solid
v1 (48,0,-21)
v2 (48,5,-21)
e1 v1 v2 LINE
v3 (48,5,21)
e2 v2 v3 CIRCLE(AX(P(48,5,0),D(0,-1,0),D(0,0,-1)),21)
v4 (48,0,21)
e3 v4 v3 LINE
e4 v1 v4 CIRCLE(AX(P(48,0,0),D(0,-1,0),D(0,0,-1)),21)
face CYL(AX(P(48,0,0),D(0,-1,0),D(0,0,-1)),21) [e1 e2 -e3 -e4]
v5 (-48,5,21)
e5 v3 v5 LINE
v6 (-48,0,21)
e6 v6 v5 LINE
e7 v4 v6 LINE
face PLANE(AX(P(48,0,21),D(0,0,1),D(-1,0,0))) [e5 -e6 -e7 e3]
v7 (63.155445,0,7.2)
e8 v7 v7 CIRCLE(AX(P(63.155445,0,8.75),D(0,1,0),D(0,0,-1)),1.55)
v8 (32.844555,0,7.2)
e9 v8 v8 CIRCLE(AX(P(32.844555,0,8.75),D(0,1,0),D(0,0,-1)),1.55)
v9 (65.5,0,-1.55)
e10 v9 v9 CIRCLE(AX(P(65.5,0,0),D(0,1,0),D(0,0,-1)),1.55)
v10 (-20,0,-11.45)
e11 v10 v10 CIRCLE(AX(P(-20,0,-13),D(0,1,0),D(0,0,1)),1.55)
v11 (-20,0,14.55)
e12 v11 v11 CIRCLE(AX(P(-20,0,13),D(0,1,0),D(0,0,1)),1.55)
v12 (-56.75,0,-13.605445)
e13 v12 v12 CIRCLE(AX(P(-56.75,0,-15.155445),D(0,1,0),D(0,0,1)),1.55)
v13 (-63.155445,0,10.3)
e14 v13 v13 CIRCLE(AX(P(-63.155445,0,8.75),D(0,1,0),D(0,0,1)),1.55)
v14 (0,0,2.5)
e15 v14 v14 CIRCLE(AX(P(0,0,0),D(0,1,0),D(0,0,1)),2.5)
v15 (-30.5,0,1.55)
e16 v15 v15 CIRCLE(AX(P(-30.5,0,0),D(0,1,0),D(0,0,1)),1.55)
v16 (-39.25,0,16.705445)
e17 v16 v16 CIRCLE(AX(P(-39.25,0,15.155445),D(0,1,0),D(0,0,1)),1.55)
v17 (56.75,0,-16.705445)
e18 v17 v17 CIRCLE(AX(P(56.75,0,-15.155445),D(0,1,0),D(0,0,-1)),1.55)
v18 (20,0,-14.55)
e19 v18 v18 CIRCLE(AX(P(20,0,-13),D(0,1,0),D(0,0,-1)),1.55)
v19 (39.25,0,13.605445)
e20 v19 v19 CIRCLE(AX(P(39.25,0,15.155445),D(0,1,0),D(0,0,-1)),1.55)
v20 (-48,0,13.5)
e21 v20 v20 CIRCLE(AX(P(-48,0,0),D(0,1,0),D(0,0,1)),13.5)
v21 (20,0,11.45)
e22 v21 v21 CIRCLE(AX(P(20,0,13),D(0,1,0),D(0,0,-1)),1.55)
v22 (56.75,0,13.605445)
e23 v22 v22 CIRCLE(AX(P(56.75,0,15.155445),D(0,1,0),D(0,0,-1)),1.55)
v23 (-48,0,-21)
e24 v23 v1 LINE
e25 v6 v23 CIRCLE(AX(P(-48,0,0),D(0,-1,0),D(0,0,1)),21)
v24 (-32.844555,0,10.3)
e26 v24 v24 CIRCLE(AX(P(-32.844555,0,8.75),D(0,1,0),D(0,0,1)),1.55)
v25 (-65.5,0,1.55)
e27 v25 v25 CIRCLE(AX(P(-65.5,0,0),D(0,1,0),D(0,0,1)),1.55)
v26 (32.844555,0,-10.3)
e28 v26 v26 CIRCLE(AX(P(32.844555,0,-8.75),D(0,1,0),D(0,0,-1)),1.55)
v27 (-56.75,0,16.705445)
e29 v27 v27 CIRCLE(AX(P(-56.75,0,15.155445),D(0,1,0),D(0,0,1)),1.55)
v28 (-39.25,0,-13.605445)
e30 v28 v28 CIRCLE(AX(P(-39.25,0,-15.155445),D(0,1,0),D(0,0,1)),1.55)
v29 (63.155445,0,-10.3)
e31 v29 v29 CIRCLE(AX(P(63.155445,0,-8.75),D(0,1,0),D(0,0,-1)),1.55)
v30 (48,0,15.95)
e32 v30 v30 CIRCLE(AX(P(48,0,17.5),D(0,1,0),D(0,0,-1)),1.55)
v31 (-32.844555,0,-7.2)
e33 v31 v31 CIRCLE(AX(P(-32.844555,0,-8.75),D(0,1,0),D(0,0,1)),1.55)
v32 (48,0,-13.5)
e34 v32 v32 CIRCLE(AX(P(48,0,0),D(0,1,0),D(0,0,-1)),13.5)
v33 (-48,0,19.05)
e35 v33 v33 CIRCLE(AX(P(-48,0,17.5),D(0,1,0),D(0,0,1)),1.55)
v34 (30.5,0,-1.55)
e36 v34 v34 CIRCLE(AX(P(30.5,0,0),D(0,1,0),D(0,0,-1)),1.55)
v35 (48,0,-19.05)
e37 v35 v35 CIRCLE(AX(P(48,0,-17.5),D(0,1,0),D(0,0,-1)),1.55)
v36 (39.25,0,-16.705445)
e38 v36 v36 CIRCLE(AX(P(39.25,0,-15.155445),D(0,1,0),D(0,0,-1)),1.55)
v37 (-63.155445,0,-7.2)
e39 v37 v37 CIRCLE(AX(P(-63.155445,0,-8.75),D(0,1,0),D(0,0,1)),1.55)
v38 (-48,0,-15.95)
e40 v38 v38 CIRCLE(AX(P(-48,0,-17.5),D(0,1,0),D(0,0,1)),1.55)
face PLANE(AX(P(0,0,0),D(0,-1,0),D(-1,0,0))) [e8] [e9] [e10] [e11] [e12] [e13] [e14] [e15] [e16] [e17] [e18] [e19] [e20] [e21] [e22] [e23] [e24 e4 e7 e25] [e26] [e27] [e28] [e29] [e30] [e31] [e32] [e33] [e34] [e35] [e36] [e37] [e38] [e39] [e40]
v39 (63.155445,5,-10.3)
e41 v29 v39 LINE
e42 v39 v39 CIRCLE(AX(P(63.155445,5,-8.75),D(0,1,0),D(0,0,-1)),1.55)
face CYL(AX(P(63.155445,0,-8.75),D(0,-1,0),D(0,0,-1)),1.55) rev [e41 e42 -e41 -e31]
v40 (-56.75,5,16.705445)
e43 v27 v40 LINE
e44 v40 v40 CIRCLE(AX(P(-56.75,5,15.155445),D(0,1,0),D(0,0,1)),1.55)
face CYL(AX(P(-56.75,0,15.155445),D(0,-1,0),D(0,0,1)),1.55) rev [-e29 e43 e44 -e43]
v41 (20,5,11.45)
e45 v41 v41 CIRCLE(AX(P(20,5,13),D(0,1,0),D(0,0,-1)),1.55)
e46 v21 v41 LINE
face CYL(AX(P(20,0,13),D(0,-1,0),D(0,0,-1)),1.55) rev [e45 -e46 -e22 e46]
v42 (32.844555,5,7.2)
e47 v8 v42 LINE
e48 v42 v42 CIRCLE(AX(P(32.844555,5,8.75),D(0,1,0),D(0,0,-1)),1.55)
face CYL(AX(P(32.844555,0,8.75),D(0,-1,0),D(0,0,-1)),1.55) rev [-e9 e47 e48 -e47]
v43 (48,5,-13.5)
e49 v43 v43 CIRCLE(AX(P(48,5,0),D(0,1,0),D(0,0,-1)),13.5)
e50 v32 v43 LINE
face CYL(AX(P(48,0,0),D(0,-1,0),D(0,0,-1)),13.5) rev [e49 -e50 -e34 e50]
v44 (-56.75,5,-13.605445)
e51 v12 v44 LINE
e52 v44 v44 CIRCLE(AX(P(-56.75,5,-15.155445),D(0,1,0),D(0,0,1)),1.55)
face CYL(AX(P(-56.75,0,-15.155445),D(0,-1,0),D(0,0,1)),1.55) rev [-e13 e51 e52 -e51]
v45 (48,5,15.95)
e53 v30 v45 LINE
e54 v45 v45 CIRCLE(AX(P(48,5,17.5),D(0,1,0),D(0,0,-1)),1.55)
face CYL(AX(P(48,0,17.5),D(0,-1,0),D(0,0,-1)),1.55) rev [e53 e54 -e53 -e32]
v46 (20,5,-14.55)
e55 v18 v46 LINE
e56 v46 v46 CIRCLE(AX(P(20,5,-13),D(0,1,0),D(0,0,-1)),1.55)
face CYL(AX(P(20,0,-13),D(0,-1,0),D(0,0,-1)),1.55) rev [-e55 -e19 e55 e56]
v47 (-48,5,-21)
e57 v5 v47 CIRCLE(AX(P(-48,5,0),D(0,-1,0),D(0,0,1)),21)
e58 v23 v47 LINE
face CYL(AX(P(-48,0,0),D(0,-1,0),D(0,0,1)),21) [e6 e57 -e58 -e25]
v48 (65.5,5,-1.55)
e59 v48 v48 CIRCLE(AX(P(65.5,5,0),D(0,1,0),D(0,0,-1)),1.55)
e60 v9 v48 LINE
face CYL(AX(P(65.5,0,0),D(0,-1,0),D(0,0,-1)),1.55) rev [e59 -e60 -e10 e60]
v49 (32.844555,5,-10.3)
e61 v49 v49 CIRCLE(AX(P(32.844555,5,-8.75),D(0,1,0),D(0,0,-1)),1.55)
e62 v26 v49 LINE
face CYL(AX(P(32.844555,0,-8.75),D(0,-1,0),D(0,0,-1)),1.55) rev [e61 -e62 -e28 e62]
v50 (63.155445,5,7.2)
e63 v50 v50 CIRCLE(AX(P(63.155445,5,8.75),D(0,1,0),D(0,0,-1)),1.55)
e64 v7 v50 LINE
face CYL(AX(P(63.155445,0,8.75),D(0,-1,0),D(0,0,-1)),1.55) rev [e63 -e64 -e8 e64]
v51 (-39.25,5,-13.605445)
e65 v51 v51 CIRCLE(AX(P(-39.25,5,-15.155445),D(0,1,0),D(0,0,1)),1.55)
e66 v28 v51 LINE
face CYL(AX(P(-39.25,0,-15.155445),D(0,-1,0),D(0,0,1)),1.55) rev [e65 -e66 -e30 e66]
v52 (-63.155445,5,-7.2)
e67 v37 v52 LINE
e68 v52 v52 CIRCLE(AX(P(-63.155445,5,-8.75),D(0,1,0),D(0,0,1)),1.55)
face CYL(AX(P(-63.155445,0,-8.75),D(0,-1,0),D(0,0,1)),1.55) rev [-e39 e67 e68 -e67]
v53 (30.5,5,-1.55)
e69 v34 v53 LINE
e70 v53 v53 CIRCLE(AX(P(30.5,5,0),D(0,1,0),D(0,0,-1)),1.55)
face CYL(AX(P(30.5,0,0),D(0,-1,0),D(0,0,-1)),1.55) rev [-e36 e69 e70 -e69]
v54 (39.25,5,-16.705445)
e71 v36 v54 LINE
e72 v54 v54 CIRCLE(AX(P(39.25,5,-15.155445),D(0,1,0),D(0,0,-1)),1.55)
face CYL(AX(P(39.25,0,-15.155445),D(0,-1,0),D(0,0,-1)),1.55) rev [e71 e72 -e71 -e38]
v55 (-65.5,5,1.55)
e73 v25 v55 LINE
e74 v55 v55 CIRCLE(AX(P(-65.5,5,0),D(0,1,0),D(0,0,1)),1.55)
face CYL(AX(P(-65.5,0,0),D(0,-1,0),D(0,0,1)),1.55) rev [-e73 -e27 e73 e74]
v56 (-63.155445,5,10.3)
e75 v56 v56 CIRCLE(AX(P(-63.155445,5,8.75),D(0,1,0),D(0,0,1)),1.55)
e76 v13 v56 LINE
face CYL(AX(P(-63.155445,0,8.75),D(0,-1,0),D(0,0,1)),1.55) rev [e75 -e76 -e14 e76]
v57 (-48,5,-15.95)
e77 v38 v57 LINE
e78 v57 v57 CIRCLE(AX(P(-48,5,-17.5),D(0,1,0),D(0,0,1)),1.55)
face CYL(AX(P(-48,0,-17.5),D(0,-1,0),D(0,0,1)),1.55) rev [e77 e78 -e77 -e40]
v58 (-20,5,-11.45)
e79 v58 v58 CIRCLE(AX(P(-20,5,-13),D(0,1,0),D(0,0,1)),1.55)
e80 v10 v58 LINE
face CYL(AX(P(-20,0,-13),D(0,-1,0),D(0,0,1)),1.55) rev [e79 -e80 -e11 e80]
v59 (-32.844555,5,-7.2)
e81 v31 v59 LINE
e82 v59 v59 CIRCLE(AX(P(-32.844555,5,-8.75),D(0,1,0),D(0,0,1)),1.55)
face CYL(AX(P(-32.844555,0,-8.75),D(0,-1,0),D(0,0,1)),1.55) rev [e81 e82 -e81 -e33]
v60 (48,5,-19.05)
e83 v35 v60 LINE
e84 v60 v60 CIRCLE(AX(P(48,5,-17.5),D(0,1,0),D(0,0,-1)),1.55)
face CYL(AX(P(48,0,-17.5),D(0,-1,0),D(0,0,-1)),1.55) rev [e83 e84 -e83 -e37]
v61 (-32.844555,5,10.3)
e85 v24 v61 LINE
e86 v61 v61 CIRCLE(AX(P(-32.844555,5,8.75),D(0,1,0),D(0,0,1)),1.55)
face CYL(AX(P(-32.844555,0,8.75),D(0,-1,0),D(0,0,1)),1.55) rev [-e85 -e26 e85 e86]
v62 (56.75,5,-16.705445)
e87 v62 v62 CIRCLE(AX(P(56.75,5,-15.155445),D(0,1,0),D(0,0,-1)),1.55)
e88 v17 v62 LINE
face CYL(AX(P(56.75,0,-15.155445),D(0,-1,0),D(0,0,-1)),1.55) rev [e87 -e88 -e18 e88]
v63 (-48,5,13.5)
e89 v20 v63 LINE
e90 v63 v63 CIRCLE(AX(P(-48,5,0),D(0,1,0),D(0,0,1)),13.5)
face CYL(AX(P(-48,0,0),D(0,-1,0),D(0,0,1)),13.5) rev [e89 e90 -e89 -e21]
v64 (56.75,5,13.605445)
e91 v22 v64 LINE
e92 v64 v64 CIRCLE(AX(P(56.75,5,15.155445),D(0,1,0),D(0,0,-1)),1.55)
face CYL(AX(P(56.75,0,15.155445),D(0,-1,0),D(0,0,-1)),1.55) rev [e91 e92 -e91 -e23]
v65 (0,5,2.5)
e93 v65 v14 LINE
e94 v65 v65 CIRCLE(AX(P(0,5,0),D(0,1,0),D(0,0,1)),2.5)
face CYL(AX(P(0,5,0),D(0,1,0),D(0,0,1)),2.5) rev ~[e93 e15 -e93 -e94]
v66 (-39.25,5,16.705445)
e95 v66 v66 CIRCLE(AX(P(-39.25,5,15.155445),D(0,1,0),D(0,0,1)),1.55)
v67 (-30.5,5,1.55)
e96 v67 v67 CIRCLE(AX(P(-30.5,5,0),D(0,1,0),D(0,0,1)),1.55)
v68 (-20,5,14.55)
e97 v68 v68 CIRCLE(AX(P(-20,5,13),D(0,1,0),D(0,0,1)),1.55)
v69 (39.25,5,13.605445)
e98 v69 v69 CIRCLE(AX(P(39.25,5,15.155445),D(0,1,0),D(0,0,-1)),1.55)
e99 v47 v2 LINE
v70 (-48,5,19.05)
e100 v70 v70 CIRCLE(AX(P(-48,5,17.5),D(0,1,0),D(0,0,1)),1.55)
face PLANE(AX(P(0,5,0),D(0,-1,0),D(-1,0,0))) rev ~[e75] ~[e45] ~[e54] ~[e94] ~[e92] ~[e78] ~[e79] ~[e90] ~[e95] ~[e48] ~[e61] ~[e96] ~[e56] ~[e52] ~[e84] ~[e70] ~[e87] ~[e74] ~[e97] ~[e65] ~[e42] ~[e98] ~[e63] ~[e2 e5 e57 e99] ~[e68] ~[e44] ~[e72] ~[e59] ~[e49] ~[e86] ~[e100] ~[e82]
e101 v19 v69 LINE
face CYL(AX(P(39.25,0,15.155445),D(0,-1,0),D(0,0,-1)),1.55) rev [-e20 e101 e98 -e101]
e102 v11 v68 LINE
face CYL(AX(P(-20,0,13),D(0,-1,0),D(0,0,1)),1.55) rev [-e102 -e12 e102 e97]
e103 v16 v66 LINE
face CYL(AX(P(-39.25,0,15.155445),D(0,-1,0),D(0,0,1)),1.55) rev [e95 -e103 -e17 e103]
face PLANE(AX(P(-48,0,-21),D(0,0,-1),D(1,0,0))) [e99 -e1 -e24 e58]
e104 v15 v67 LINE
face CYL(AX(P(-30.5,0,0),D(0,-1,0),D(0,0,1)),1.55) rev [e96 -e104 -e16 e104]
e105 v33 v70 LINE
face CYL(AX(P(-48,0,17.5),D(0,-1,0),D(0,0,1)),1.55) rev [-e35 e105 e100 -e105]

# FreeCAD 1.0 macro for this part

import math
import FreeCAD as App
import Part
import Sketcher
from FreeCAD import Vector

doc = App.newDocument("Part")
body = doc.addObject("PartDesign::Body", "Body")

sketch1 = doc.addObject("Sketcher::SketchObject", "Sketch")
body.addObject(sketch1)
sketch1.AttachmentSupport = (doc.XZ_Plane, [""])
sketch1.MapMode = "FlatFace"
sketch1.addGeometry([
    Part.LineSegment(Vector(48, -21, 0), Vector(-48, -21, 0)),
    Part.ArcOfCircle(Part.Circle(Vector(-48, 0, 0), Vector(0, 0, 1), 21), math.radians(90), math.radians(270)),
    Part.LineSegment(Vector(-48, 21, 0), Vector(48, 21, 0)),
    Part.ArcOfCircle(Part.Circle(Vector(48, 0, 0), Vector(0, 0, 1), 21), math.radians(-90), math.radians(90)),
    Part.Circle(Vector(56.8, 15.2, 0), Vector(0, 0, 1), 1.6),
    Part.Circle(Vector(48, 17.5, 0), Vector(0, 0, 1), 1.6),
    Part.Circle(Vector(39.2, 15.2, 0), Vector(0, 0, 1), 1.6),
    Part.Circle(Vector(20, 13, 0), Vector(0, 0, 1), 1.6),
    Part.Circle(Vector(63.2, 8.8, 0), Vector(0, 0, 1), 1.6),
    Part.Circle(Vector(32.8, 8.8, 0), Vector(0, 0, 1), 1.6),
    Part.Circle(Vector(-20, 13, 0), Vector(0, 0, 1), 1.6),
    Part.Circle(Vector(-48, 17.5, 0), Vector(0, 0, 1), 1.6),
    Part.Circle(Vector(-39.2, 15.2, 0), Vector(0, 0, 1), 1.6),
    Part.Circle(Vector(-56.8, 15.2, 0), Vector(0, 0, 1), 1.6),
    Part.Circle(Vector(-32.8, 8.8, 0), Vector(0, 0, 1), 1.6),
    Part.Circle(Vector(-63.2, 8.8, 0), Vector(0, 0, 1), 1.6),
    Part.Circle(Vector(65.5, 0, 0), Vector(0, 0, 1), 1.6),
    Part.Circle(Vector(48, 0, 0), Vector(0, 0, 1), 13.5),
    Part.Circle(Vector(63.2, -8.8, 0), Vector(0, 0, 1), 1.6),
    Part.Circle(Vector(30.5, 0, 0), Vector(0, 0, 1), 1.6),
    Part.Circle(Vector(32.8, -8.8, 0), Vector(0, 0, 1), 1.6),
    Part.Circle(Vector(56.8, -15.2, 0), Vector(0, 0, 1), 1.6),
    Part.Circle(Vector(39.2, -15.2, 0), Vector(0, 0, 1), 1.6),
    Part.Circle(Vector(48, -17.5, 0), Vector(0, 0, 1), 1.6),
    Part.Circle(Vector(20, -13, 0), Vector(0, 0, 1), 1.6),
    Part.Circle(Vector(-30.5, 0, 0), Vector(0, 0, 1), 1.6),
    Part.Circle(Vector(-32.8, -8.8, 0), Vector(0, 0, 1), 1.6),
    Part.Circle(Vector(-48, 0, 0), Vector(0, 0, 1), 13.5),
    Part.Circle(Vector(-65.5, 0, 0), Vector(0, 0, 1), 1.6),
    Part.Circle(Vector(-63.2, -8.8, 0), Vector(0, 0, 1), 1.6),
    Part.Circle(Vector(-20, -13, 0), Vector(0, 0, 1), 1.6),
    Part.Circle(Vector(-39.2, -15.2, 0), Vector(0, 0, 1), 1.6),
    Part.Circle(Vector(-48, -17.5, 0), Vector(0, 0, 1), 1.6),
    Part.Circle(Vector(-56.8, -15.2, 0), Vector(0, 0, 1), 1.6),
], False)
sketch1.addConstraint([
    Sketcher.Constraint("Tangent", 0, 2, 1, 2),
    Sketcher.Constraint("Tangent", 1, 1, 2, 1),
    Sketcher.Constraint("Tangent", 2, 2, 3, 2),
    Sketcher.Constraint("Tangent", 3, 1, 0, 1),
    Sketcher.Constraint("Horizontal", 0),
    Sketcher.Constraint("Horizontal", 2),
    Sketcher.Constraint("Coincident", 17, 3, 3, 3),
    Sketcher.Constraint("Coincident", 27, 3, 1, 3),
    Sketcher.Constraint("Equal", 4, 5),
    Sketcher.Constraint("Equal", 5, 6),
    Sketcher.Constraint("Equal", 6, 7),
    Sketcher.Constraint("Equal", 7, 8),
    Sketcher.Constraint("Equal", 8, 9),
    Sketcher.Constraint("Equal", 9, 10),
    Sketcher.Constraint("Equal", 10, 11),
    Sketcher.Constraint("Equal", 11, 12),
    Sketcher.Constraint("Equal", 12, 13),
    Sketcher.Constraint("Equal", 13, 14),
    Sketcher.Constraint("Equal", 14, 15),
    Sketcher.Constraint("Equal", 15, 16),
    Sketcher.Constraint("Equal", 16, 18),
    Sketcher.Constraint("Equal", 18, 19),
    Sketcher.Constraint("Equal", 19, 20),
    Sketcher.Constraint("Equal", 20, 21),
    Sketcher.Constraint("Equal", 21, 22),
    Sketcher.Constraint("Equal", 22, 23),
    Sketcher.Constraint("Equal", 23, 24),
    Sketcher.Constraint("Equal", 24, 25),
    Sketcher.Constraint("Equal", 25, 26),
    Sketcher.Constraint("Equal", 17, 27),
    Sketcher.Constraint("Equal", 26, 28),
    Sketcher.Constraint("Equal", 28, 29),
    Sketcher.Constraint("Equal", 29, 30),
    Sketcher.Constraint("Equal", 30, 31),
    Sketcher.Constraint("Equal", 31, 32),
    Sketcher.Constraint("Equal", 32, 33),
    Sketcher.Constraint("Symmetric", 1, 3, 3, 3, -1, 1),
    Sketcher.Constraint("Symmetric", 15, 3, 18, 3, -1, 1),
    Sketcher.Constraint("Symmetric", 14, 3, 20, 3, -1, 1),
    Sketcher.Constraint("Symmetric", 13, 3, 21, 3, -1, 1),
    Sketcher.Constraint("Symmetric", 12, 3, 22, 3, -1, 1),
    Sketcher.Constraint("Symmetric", 11, 3, 23, 3, -1, 1),
    Sketcher.Constraint("Symmetric", 10, 3, 24, 3, -1, 1),
    Sketcher.Constraint("Symmetric", 19, 3, 25, 3, -1, 1),
    Sketcher.Constraint("Symmetric", 9, 3, 26, 3, -1, 1),
    Sketcher.Constraint("Symmetric", 16, 3, 28, 3, -1, 1),
    Sketcher.Constraint("Symmetric", 8, 3, 29, 3, -1, 1),
    Sketcher.Constraint("Symmetric", 7, 3, 30, 3, -1, 1),
    Sketcher.Constraint("Symmetric", 6, 3, 31, 3, -1, 1),
    Sketcher.Constraint("Symmetric", 5, 3, 32, 3, -1, 1),
    Sketcher.Constraint("Symmetric", 4, 3, 33, 3, -1, 1),
    Sketcher.Constraint("Symmetric", 7, 3, 10, 3, -2),
    Sketcher.Constraint("Symmetric", 5, 3, 11, 3, -2),
    Sketcher.Constraint("Symmetric", 6, 3, 12, 3, -2),
    Sketcher.Constraint("Symmetric", 4, 3, 13, 3, -2),
    Sketcher.Constraint("Symmetric", 9, 3, 14, 3, -2),
    Sketcher.Constraint("Symmetric", 8, 3, 15, 3, -2),
    Sketcher.Constraint("PointOnObject", 16, 3, -1),
    Sketcher.Constraint("PointOnObject", 19, 3, -1),
    Sketcher.Constraint("Horizontal", 4, 3, 6, 3),
    Sketcher.Constraint("Horizontal", 8, 3, 9, 3),
    Sketcher.Constraint("Vertical", 3, 3, 5, 3),
    Sketcher.Constraint("Diameter", 17, 27.0),
    Sketcher.Constraint("Radius", 1, 21.0),
    Sketcher.Constraint("Diameter", 4, 3.1),
    Sketcher.Constraint("DistanceX", 0, 2, 0, 1, 96.0),
    Sketcher.Constraint("DistanceX", -1, 1, 7, 3, 20.0),
    Sketcher.Constraint("DistanceY", -1, 1, 7, 3, 13.0),
    Sketcher.Constraint("DistanceY", -1, 1, 5, 3, 17.5),
    Sketcher.Constraint("DistanceX", -1, 1, 16, 3, 65.5),
    Sketcher.Constraint("DistanceX", -1, 1, 19, 3, 30.5),
    Sketcher.Constraint("DistanceX", 6, 3, 4, 3, 17.5),
    Sketcher.Constraint("DistanceY", 18, 3, 8, 3, 17.5),
    Sketcher.Constraint("DistanceX", -1, 1, 4, 3, 56.75),
    Sketcher.Constraint("DistanceX", 15, 3, 14, 3, 30.310889),
    Sketcher.Constraint("DistanceY", -1, 1, 4, 3, 15.155445),
    Sketcher.Constraint("DistanceX", -1, 1, 8, 3, 63.155445),
])
pad1 = doc.addObject("PartDesign::Pad", "Pad")
body.addObject(pad1)
pad1.Profile = sketch1
pad1.Length = 5
pad1.Reversed = True

sketch2 = doc.addObject("Sketcher::SketchObject", "Sketch001")
body.addObject(sketch2)
sketch2.AttachmentSupport = (doc.XZ_Plane, [""])
sketch2.MapMode = "FlatFace"
sketch2.AttachmentOffset = App.Placement(Vector(0, 0, -5), App.Rotation())
sketch2.addGeometry(Part.Circle(Vector(0, 0, 0), Vector(0, 0, 1), 2.5), False)
sketch2.addConstraint([
    Sketcher.Constraint("Coincident", 0, 3, -1, 1),
    Sketcher.Constraint("Diameter", 0, 5.0),
])
pocket1 = doc.addObject("PartDesign::Pocket", "Pocket")
body.addObject(pocket1)
pocket1.Profile = sketch2
pocket1.Length = 5
pocket1.Reversed = True

doc.recompute()
